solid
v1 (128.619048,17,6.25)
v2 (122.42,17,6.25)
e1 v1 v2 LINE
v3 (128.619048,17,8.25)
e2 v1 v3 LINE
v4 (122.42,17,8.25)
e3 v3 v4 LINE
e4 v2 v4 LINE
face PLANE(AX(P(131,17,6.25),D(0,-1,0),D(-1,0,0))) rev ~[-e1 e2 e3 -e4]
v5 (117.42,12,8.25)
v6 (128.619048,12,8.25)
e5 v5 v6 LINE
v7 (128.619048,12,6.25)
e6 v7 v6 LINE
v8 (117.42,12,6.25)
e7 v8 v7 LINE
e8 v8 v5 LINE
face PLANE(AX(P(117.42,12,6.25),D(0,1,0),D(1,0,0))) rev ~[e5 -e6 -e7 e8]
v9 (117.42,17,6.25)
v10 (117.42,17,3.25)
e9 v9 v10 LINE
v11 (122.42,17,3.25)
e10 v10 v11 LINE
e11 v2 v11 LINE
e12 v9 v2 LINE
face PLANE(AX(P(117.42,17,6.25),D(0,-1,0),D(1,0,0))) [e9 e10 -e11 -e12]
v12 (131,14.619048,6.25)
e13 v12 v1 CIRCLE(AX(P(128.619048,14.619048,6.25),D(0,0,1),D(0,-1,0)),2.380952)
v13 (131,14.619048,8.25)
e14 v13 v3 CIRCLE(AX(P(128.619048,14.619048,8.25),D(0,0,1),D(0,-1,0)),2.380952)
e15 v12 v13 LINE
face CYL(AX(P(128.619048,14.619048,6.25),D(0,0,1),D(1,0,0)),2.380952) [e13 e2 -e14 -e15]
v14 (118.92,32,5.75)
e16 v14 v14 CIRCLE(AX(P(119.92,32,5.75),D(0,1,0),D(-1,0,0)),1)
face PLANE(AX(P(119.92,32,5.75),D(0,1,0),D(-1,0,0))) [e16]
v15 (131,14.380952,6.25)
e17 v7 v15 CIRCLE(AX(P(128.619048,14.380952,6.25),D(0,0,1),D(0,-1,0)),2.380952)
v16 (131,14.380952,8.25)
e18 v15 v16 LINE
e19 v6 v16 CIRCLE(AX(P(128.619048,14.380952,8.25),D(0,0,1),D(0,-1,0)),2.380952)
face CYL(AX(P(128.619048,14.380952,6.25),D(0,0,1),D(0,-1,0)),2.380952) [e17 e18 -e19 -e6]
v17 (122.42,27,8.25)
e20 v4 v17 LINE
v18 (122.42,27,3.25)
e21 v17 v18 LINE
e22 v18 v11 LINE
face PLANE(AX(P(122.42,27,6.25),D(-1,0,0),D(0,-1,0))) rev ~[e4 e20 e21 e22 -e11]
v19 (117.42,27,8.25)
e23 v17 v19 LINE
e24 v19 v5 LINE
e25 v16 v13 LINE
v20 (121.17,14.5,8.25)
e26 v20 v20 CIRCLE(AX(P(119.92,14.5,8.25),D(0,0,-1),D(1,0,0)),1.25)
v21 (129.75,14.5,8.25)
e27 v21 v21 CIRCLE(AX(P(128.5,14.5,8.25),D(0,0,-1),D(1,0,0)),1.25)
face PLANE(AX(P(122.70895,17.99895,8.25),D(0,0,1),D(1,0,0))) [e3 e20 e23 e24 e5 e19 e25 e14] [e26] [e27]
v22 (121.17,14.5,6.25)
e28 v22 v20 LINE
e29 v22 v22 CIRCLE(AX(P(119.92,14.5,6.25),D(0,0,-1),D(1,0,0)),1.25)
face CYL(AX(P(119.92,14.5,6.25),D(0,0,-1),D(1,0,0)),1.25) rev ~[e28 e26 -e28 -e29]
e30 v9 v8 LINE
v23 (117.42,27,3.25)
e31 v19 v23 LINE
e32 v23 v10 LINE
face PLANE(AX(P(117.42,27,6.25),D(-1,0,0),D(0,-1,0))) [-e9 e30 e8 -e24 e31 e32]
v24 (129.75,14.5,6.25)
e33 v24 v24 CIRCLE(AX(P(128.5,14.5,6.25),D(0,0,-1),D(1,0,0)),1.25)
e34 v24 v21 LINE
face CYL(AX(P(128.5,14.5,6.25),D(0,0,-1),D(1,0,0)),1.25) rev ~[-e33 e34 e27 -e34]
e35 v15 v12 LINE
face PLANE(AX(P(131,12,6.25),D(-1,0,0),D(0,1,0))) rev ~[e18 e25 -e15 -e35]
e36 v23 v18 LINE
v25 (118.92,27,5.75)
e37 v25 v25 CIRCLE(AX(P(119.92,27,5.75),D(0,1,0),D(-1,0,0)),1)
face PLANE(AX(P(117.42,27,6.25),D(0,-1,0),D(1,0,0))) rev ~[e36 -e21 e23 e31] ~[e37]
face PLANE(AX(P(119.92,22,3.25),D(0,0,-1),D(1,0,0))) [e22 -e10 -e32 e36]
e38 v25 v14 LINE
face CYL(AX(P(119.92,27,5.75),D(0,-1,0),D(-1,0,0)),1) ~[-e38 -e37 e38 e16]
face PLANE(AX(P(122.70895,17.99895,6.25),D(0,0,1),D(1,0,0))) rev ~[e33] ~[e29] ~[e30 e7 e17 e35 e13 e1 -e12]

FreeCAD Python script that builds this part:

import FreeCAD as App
import Part
import Sketcher
from FreeCAD import Vector
Q = App.Units.Quantity


def edges_at(feature, points):
    """Names of the edges that pass closest to the given points."""
    edges = feature.Shape.Edges
    near = lambda p: min(range(len(edges)), key=lambda i: edges[i].distToShape(Part.Vertex(*p))[0])
    return sorted({f"Edge{near(p) + 1}" for p in points})


def add_polygon(sketch, points):
    """Adds a closed chain of lines whose ends are joined by coincident constraints."""
    first, n = sketch.GeometryCount, len(points)
    for a, b in zip(points, points[1:] + points[:1]):
        sketch.addGeometry(Part.LineSegment(App.Vector(*a, 0), App.Vector(*b, 0)), False)
    for i in range(n):
        sketch.addConstraint(Sketcher.Constraint("Coincident", first + i, 2, first + (i + 1) % n, 1))

doc = App.newDocument("Part")
body = doc.addObject("PartDesign::Body", "Body")

sketch1 = body.newObject("Sketcher::SketchObject", "Sketch")
sketch1.AttachmentSupport = (doc.getObject("XY_Plane"), [""])
sketch1.MapMode = "FlatFace"
add_polygon(sketch1, [(-2.5, -2.5), (11.08, -2.5), (11.08, 2.5), (2.5, 2.5), (2.5, 12.5), (-2.5, 12.5)])
sketch1.addConstraint(Sketcher.Constraint("Horizontal", 0))
sketch1.addConstraint(Sketcher.Constraint("Vertical", 1))
sketch1.addConstraint(Sketcher.Constraint("Horizontal", 2))
sketch1.addConstraint(Sketcher.Constraint("Vertical", 3))
sketch1.addConstraint(Sketcher.Constraint("Horizontal", 4))
sketch1.addConstraint(Sketcher.Constraint("Vertical", 5))
sketch1.addConstraint(Sketcher.Constraint("Symmetric", 2, 2, 5, 2, -1, 1))
sketch1.addConstraint(Sketcher.Constraint("Equal", 4, 1))
sketch1.addConstraint(Sketcher.Constraint("DistanceX", 4, 2, 4, 1, Q("5 mm")))
sketch1.addConstraint(Sketcher.Constraint("DistanceY", 3, 1, 3, 2, Q("10 mm")))
sketch1.addConstraint(Sketcher.Constraint("DistanceX", 0, 1, 0, 2, Q("13.58 mm")))
pad1 = body.newObject("PartDesign::Pad", "Pad")
pad1.Profile = sketch1
pad1.Length = 2
doc.recompute()

fillet = body.newObject("PartDesign::Fillet", "Fillet")
fillet.Base = (pad1, edges_at(pad1, [(11.08, 2.5, 1), (11.08, -2.5, 1)]))
fillet.Radius = 2.380952

sketch2 = body.newObject("Sketcher::SketchObject", "Sketch001")
sketch2.AttachmentSupport = (doc.getObject("XY_Plane"), [""])
sketch2.MapMode = "FlatFace"
sketch2.addGeometry(Part.Circle(Vector(0, 0, 0), Vector(0, 0, 1), 1.25), False)
sketch2.addGeometry(Part.Circle(Vector(8.58, 0, 0), Vector(0, 0, 1), 1.25), False)
sketch2.addConstraint(Sketcher.Constraint("Coincident", 0, 3, -1, 1))
sketch2.addConstraint(Sketcher.Constraint("Equal", 0, 1))
sketch2.addConstraint(Sketcher.Constraint("PointOnObject", 1, 3, -1))
sketch2.addConstraint(Sketcher.Constraint("Diameter", 0, Q("2.5 mm")))
sketch2.addConstraint(Sketcher.Constraint("DistanceX", -1, 1, 1, 3, Q("8.58 mm")))
pocket1 = body.newObject("PartDesign::Pocket", "Pocket")
pocket1.Profile = sketch2
pocket1.Length = 2
pocket1.Reversed = True

sketch3 = body.newObject("Sketcher::SketchObject", "Sketch002")
sketch3.AttachmentSupport = (doc.getObject("XY_Plane"), [""])
sketch3.MapMode = "FlatFace"
add_polygon(sketch3, [(-2.5, 2.5), (-2.5, 12.5), (2.5, 12.5), (2.5, 2.5)])
sketch3.addConstraint(Sketcher.Constraint("Vertical", 0))
sketch3.addConstraint(Sketcher.Constraint("Horizontal", 1))
sketch3.addConstraint(Sketcher.Constraint("Vertical", 2))
sketch3.addConstraint(Sketcher.Constraint("Horizontal", 3))
sketch3.addConstraint(Sketcher.Constraint("DistanceX", 1, 1, 1, 2, Q("5 mm")))
sketch3.addConstraint(Sketcher.Constraint("DistanceY", 0, 1, 0, 2, Q("10 mm")))
sketch3.addConstraint(Sketcher.Constraint("DistanceX", 0, 2, -1, 1, Q("2.5 mm")))
sketch3.addConstraint(Sketcher.Constraint("DistanceY", -1, 1, 0, 2, Q("12.5 mm")))
pad2 = body.newObject("PartDesign::Pad", "Pad001")
pad2.Profile = sketch3
pad2.Length = 3
pad2.Reversed = True

sketch4 = body.newObject("Sketcher::SketchObject", "Sketch003")
sketch4.AttachmentSupport = (doc.getObject("XZ_Plane"), [""])
sketch4.MapMode = "FlatFace"
sketch4.AttachmentOffset = App.Placement(Vector(0, 0, -12.5), App.Rotation())
sketch4.addGeometry(Part.Circle(Vector(0, -0.5, 0), Vector(0, 0, 1), 1), False)
sketch4.addConstraint(Sketcher.Constraint("PointOnObject", 0, 3, -2))
sketch4.addConstraint(Sketcher.Constraint("Diameter", 0, Q("2 mm")))
sketch4.addConstraint(Sketcher.Constraint("DistanceY", 0, 3, -1, 1, Q("0.5 mm")))
pad3 = body.newObject("PartDesign::Pad", "Pad002")
pad3.Profile = sketch4
pad3.Length = 5
pad3.Reversed = True
body2 = doc.addObject("PartDesign::Body", "Body001")
doc.recompute()

body.Placement = App.Placement(Vector(119.92, 14.5, 6.25), App.Rotation(Vector(0, 0, 1), 0))
boolean = body2.newObject("PartDesign::Boolean", "Boolean")
boolean.Type = "Fuse"
boolean.addObjects([body])

doc.recompute()
